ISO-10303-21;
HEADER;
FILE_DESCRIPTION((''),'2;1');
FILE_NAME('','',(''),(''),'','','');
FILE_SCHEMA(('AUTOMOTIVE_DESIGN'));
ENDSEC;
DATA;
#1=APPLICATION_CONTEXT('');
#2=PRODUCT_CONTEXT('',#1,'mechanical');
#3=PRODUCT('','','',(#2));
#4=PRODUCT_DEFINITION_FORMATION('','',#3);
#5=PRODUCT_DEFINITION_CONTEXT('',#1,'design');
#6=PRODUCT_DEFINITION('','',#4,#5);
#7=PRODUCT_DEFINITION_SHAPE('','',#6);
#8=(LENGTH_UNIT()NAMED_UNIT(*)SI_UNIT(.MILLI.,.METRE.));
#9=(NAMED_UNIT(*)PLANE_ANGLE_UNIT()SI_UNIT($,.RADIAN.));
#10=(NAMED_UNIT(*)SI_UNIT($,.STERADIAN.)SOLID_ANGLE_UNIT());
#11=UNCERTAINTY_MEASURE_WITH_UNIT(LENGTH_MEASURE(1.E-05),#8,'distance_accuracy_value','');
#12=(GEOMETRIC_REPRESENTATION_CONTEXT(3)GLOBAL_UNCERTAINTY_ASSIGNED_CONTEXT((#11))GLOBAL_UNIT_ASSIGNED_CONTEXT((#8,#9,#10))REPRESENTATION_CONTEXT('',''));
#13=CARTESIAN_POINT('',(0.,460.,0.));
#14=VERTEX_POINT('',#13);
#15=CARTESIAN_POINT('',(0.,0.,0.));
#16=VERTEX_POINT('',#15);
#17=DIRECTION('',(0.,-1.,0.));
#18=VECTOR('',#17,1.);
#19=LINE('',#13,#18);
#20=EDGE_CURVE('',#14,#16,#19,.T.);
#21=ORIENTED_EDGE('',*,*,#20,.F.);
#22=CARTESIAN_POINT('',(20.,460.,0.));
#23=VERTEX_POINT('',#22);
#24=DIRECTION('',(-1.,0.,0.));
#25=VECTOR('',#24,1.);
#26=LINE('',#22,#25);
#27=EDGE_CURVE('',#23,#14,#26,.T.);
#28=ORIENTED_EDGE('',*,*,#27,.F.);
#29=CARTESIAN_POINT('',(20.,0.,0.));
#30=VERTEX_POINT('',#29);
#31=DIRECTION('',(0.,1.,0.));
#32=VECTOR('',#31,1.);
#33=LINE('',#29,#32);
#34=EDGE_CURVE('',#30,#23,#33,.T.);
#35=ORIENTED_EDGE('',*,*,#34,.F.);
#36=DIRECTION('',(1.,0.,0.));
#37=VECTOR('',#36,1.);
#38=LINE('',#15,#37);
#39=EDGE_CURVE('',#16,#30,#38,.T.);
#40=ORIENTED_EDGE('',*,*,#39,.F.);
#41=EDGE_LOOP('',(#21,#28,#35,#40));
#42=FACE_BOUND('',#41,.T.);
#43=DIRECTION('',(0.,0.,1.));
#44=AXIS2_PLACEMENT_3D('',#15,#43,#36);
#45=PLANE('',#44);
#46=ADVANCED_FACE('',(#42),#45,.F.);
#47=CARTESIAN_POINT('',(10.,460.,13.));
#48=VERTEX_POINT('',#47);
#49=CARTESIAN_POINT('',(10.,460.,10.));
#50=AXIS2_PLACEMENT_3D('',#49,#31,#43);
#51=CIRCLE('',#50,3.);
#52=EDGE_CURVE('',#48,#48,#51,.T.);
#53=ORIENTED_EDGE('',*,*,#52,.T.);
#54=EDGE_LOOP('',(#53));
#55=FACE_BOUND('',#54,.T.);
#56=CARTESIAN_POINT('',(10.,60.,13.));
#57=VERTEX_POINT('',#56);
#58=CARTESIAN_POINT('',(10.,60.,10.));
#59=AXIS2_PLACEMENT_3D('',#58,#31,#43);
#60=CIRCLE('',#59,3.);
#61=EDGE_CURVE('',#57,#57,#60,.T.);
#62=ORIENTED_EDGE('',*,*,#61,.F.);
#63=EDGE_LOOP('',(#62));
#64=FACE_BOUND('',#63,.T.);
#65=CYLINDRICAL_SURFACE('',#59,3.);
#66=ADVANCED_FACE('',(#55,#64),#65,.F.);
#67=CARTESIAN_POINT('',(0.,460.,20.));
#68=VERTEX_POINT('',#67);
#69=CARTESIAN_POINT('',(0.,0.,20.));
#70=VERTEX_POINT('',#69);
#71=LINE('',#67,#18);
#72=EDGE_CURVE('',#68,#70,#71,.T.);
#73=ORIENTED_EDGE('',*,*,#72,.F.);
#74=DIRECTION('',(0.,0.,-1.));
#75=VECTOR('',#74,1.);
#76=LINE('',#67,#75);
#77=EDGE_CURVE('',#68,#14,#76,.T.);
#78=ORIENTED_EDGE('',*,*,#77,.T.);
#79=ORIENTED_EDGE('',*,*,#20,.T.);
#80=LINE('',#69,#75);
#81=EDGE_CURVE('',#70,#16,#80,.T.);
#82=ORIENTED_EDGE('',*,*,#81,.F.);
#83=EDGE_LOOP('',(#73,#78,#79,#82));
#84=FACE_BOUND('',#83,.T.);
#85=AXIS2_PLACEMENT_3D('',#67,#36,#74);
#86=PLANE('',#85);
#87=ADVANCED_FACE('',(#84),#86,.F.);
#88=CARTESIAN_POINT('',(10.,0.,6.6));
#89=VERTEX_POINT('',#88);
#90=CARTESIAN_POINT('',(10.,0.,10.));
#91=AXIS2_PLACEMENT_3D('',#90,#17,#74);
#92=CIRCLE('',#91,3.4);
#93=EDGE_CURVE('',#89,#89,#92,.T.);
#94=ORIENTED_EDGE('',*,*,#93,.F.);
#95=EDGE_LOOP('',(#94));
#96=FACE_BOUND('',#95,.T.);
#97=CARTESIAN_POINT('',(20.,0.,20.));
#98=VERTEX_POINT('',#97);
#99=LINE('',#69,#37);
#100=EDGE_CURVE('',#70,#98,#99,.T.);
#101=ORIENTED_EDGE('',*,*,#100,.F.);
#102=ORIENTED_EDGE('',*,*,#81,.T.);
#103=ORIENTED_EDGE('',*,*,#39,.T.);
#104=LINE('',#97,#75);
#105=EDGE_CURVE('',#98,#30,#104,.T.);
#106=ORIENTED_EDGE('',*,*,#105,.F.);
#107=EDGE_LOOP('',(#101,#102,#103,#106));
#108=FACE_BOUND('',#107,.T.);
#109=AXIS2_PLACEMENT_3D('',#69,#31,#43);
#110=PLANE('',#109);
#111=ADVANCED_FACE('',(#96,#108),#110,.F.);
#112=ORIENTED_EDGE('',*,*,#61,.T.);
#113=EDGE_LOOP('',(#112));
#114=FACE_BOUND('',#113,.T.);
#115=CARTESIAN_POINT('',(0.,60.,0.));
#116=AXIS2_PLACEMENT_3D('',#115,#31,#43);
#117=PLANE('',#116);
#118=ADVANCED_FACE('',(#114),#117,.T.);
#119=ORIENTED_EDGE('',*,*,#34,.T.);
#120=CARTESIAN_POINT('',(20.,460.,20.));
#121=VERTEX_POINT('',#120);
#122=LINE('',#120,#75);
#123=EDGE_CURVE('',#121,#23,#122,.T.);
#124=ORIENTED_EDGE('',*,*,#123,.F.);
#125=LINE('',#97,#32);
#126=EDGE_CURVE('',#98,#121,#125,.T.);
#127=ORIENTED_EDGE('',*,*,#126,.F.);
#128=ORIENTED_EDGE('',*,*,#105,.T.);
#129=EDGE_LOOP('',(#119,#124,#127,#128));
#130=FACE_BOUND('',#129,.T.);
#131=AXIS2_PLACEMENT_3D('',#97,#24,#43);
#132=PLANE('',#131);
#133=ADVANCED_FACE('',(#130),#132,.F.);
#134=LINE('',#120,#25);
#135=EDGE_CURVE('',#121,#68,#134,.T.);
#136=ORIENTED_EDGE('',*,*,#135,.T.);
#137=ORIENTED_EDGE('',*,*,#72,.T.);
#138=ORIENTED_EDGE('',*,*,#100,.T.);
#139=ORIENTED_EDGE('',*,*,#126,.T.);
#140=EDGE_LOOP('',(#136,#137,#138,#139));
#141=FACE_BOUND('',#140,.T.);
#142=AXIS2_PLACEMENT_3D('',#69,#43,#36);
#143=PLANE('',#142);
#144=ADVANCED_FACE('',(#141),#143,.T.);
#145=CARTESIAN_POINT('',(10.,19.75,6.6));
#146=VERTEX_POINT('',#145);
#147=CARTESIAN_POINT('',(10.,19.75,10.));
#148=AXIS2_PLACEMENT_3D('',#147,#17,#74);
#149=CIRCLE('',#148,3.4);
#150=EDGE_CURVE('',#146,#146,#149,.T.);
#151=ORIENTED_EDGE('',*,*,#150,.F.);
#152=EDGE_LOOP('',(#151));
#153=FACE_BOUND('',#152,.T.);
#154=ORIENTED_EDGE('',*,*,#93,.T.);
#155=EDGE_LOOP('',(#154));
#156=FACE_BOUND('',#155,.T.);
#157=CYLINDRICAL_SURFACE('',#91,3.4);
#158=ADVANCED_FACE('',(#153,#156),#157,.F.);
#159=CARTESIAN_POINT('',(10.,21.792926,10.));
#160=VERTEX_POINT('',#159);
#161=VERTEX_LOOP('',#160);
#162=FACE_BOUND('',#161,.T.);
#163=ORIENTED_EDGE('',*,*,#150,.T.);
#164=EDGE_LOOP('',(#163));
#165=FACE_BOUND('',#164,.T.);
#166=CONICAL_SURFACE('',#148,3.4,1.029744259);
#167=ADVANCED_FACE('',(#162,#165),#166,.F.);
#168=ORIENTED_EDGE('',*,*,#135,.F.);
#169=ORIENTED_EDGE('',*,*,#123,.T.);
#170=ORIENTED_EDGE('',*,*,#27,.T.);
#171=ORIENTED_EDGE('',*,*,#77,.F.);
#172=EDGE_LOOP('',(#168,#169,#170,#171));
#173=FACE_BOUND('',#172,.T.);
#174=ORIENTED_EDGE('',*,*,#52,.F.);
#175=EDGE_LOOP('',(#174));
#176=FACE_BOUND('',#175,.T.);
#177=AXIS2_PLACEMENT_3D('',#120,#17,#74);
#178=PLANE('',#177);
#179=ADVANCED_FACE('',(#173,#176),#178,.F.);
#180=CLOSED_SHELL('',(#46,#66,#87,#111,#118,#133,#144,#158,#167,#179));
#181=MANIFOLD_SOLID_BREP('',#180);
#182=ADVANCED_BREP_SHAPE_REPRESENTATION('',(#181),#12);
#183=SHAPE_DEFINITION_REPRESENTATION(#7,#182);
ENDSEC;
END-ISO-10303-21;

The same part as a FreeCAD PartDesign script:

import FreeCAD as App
import Part
import Sketcher

V = App.Vector
Q = App.Units.Quantity

doc = App.newDocument("Part")
params = doc.addObject("Spreadsheet::Sheet", "Params")
for row, (alias, value) in enumerate([
    ("sketch1_width", "20 mm"),
    ("sketch1_height", "460 mm"),
    ("pad1_length", "20 mm"),
    ("sketch2_diameter", "6 mm"),
    ("pocket1_length", "400 mm"),
    ("sketch3_diameter", "6.8 mm"),
    ("hole_diameter", "6.8 mm"),
    ("hole_depth", "19.75 mm"),
], start=1):
    params.set(f"A{row}", alias)
    params.set(f"B{row}", "=" + value)
    params.setAlias(f"B{row}", alias)

body = doc.addObject("PartDesign::Body", "Body")

sketch1 = body.newObject("Sketcher::SketchObject", "Sketch")
sketch1.AttachmentSupport = (doc.getObject("XY_Plane"), [""])
sketch1.MapMode = "FlatFace"
sketch1.addGeometry(Part.LineSegment(V(0, 460, 0), V(0, 0, 0)), False)
sketch1.addGeometry(Part.LineSegment(V(0, 0, 0), V(20, 0, 0)), False)
sketch1.addGeometry(Part.LineSegment(V(20, 0, 0), V(20, 460, 0)), False)
sketch1.addGeometry(Part.LineSegment(V(20, 460, 0), V(0, 460, 0)), False)
sketch1.addConstraint(Sketcher.Constraint("Coincident", 0, 2, 1, 1))
sketch1.addConstraint(Sketcher.Constraint("Coincident", 1, 2, 2, 1))
sketch1.addConstraint(Sketcher.Constraint("Coincident", 2, 2, 3, 1))
sketch1.addConstraint(Sketcher.Constraint("Coincident", 3, 2, 0, 1))
sketch1.addConstraint(Sketcher.Constraint("Vertical", 0))
sketch1.addConstraint(Sketcher.Constraint("Horizontal", 1))
sketch1.addConstraint(Sketcher.Constraint("Vertical", 2))
sketch1.addConstraint(Sketcher.Constraint("Horizontal", 3))
sketch1.addConstraint(Sketcher.Constraint("Coincident", 0, 2, -1, 1))
sketch1.addConstraint(Sketcher.Constraint("DistanceX", 1, 1, 1, 2, Q("20 mm")))
sketch1.addConstraint(Sketcher.Constraint("DistanceY", 0, 2, 0, 1, Q("460 mm")))
sketch1.setExpression("Constraints[9]", "Params.sketch1_width")
sketch1.setExpression("Constraints[10]", "Params.sketch1_height")
pad1 = body.newObject("PartDesign::Pad", "Pad")
pad1.Profile = sketch1
pad1.setExpression("Length", "Params.pad1_length")

sketch2 = body.newObject("Sketcher::SketchObject", "Sketch001")
sketch2.AttachmentSupport = (doc.getObject("XZ_Plane"), [""])
sketch2.MapMode = "FlatFace"
sketch2.AttachmentOffset = App.Placement(V(0, 0, -460), App.Rotation())
sketch2.addGeometry(Part.Circle(V(10, 10, 0), V(0, 0, 1), 3), False)
sketch2.addConstraint(Sketcher.Constraint("Diameter", 0, Q("6 mm")))
sketch2.addConstraint(Sketcher.Constraint("DistanceX", -1, 1, 0, 3, Q("10 mm")))
sketch2.addConstraint(Sketcher.Constraint("DistanceY", -1, 1, 0, 3, Q("10 mm")))
sketch2.setExpression("Constraints[0]", "Params.sketch2_diameter")
pocket1 = body.newObject("PartDesign::Pocket", "Pocket")
pocket1.Profile = sketch2
pocket1.setExpression("Length", "Params.pocket1_length")
pocket1.Reversed = True

sketch3 = body.newObject("Sketcher::SketchObject", "Sketch002")
sketch3.AttachmentSupport = (doc.getObject("XZ_Plane"), [""])
sketch3.MapMode = "FlatFace"
sketch3.addGeometry(Part.Circle(V(10, 10, 0), V(0, 0, 1), 3.4), False)
sketch3.addConstraint(Sketcher.Constraint("Diameter", 0, Q("6.8 mm")))
sketch3.addConstraint(Sketcher.Constraint("DistanceX", -1, 1, 0, 3, Q("10 mm")))
sketch3.addConstraint(Sketcher.Constraint("DistanceY", -1, 1, 0, 3, Q("10 mm")))
sketch3.setExpression("Constraints[0]", "Params.sketch3_diameter")
doc.recompute()
hole = body.newObject("PartDesign::Hole", "Hole")
hole.Profile = sketch3
hole.ThreadType = "None"
hole.setExpression("Diameter", "Params.hole_diameter")
hole.DepthType = "Dimension"
hole.setExpression("Depth", "Params.hole_depth")
hole.DrillPoint = "Angled"
hole.DrillPointAngle = 118

doc.recompute()
